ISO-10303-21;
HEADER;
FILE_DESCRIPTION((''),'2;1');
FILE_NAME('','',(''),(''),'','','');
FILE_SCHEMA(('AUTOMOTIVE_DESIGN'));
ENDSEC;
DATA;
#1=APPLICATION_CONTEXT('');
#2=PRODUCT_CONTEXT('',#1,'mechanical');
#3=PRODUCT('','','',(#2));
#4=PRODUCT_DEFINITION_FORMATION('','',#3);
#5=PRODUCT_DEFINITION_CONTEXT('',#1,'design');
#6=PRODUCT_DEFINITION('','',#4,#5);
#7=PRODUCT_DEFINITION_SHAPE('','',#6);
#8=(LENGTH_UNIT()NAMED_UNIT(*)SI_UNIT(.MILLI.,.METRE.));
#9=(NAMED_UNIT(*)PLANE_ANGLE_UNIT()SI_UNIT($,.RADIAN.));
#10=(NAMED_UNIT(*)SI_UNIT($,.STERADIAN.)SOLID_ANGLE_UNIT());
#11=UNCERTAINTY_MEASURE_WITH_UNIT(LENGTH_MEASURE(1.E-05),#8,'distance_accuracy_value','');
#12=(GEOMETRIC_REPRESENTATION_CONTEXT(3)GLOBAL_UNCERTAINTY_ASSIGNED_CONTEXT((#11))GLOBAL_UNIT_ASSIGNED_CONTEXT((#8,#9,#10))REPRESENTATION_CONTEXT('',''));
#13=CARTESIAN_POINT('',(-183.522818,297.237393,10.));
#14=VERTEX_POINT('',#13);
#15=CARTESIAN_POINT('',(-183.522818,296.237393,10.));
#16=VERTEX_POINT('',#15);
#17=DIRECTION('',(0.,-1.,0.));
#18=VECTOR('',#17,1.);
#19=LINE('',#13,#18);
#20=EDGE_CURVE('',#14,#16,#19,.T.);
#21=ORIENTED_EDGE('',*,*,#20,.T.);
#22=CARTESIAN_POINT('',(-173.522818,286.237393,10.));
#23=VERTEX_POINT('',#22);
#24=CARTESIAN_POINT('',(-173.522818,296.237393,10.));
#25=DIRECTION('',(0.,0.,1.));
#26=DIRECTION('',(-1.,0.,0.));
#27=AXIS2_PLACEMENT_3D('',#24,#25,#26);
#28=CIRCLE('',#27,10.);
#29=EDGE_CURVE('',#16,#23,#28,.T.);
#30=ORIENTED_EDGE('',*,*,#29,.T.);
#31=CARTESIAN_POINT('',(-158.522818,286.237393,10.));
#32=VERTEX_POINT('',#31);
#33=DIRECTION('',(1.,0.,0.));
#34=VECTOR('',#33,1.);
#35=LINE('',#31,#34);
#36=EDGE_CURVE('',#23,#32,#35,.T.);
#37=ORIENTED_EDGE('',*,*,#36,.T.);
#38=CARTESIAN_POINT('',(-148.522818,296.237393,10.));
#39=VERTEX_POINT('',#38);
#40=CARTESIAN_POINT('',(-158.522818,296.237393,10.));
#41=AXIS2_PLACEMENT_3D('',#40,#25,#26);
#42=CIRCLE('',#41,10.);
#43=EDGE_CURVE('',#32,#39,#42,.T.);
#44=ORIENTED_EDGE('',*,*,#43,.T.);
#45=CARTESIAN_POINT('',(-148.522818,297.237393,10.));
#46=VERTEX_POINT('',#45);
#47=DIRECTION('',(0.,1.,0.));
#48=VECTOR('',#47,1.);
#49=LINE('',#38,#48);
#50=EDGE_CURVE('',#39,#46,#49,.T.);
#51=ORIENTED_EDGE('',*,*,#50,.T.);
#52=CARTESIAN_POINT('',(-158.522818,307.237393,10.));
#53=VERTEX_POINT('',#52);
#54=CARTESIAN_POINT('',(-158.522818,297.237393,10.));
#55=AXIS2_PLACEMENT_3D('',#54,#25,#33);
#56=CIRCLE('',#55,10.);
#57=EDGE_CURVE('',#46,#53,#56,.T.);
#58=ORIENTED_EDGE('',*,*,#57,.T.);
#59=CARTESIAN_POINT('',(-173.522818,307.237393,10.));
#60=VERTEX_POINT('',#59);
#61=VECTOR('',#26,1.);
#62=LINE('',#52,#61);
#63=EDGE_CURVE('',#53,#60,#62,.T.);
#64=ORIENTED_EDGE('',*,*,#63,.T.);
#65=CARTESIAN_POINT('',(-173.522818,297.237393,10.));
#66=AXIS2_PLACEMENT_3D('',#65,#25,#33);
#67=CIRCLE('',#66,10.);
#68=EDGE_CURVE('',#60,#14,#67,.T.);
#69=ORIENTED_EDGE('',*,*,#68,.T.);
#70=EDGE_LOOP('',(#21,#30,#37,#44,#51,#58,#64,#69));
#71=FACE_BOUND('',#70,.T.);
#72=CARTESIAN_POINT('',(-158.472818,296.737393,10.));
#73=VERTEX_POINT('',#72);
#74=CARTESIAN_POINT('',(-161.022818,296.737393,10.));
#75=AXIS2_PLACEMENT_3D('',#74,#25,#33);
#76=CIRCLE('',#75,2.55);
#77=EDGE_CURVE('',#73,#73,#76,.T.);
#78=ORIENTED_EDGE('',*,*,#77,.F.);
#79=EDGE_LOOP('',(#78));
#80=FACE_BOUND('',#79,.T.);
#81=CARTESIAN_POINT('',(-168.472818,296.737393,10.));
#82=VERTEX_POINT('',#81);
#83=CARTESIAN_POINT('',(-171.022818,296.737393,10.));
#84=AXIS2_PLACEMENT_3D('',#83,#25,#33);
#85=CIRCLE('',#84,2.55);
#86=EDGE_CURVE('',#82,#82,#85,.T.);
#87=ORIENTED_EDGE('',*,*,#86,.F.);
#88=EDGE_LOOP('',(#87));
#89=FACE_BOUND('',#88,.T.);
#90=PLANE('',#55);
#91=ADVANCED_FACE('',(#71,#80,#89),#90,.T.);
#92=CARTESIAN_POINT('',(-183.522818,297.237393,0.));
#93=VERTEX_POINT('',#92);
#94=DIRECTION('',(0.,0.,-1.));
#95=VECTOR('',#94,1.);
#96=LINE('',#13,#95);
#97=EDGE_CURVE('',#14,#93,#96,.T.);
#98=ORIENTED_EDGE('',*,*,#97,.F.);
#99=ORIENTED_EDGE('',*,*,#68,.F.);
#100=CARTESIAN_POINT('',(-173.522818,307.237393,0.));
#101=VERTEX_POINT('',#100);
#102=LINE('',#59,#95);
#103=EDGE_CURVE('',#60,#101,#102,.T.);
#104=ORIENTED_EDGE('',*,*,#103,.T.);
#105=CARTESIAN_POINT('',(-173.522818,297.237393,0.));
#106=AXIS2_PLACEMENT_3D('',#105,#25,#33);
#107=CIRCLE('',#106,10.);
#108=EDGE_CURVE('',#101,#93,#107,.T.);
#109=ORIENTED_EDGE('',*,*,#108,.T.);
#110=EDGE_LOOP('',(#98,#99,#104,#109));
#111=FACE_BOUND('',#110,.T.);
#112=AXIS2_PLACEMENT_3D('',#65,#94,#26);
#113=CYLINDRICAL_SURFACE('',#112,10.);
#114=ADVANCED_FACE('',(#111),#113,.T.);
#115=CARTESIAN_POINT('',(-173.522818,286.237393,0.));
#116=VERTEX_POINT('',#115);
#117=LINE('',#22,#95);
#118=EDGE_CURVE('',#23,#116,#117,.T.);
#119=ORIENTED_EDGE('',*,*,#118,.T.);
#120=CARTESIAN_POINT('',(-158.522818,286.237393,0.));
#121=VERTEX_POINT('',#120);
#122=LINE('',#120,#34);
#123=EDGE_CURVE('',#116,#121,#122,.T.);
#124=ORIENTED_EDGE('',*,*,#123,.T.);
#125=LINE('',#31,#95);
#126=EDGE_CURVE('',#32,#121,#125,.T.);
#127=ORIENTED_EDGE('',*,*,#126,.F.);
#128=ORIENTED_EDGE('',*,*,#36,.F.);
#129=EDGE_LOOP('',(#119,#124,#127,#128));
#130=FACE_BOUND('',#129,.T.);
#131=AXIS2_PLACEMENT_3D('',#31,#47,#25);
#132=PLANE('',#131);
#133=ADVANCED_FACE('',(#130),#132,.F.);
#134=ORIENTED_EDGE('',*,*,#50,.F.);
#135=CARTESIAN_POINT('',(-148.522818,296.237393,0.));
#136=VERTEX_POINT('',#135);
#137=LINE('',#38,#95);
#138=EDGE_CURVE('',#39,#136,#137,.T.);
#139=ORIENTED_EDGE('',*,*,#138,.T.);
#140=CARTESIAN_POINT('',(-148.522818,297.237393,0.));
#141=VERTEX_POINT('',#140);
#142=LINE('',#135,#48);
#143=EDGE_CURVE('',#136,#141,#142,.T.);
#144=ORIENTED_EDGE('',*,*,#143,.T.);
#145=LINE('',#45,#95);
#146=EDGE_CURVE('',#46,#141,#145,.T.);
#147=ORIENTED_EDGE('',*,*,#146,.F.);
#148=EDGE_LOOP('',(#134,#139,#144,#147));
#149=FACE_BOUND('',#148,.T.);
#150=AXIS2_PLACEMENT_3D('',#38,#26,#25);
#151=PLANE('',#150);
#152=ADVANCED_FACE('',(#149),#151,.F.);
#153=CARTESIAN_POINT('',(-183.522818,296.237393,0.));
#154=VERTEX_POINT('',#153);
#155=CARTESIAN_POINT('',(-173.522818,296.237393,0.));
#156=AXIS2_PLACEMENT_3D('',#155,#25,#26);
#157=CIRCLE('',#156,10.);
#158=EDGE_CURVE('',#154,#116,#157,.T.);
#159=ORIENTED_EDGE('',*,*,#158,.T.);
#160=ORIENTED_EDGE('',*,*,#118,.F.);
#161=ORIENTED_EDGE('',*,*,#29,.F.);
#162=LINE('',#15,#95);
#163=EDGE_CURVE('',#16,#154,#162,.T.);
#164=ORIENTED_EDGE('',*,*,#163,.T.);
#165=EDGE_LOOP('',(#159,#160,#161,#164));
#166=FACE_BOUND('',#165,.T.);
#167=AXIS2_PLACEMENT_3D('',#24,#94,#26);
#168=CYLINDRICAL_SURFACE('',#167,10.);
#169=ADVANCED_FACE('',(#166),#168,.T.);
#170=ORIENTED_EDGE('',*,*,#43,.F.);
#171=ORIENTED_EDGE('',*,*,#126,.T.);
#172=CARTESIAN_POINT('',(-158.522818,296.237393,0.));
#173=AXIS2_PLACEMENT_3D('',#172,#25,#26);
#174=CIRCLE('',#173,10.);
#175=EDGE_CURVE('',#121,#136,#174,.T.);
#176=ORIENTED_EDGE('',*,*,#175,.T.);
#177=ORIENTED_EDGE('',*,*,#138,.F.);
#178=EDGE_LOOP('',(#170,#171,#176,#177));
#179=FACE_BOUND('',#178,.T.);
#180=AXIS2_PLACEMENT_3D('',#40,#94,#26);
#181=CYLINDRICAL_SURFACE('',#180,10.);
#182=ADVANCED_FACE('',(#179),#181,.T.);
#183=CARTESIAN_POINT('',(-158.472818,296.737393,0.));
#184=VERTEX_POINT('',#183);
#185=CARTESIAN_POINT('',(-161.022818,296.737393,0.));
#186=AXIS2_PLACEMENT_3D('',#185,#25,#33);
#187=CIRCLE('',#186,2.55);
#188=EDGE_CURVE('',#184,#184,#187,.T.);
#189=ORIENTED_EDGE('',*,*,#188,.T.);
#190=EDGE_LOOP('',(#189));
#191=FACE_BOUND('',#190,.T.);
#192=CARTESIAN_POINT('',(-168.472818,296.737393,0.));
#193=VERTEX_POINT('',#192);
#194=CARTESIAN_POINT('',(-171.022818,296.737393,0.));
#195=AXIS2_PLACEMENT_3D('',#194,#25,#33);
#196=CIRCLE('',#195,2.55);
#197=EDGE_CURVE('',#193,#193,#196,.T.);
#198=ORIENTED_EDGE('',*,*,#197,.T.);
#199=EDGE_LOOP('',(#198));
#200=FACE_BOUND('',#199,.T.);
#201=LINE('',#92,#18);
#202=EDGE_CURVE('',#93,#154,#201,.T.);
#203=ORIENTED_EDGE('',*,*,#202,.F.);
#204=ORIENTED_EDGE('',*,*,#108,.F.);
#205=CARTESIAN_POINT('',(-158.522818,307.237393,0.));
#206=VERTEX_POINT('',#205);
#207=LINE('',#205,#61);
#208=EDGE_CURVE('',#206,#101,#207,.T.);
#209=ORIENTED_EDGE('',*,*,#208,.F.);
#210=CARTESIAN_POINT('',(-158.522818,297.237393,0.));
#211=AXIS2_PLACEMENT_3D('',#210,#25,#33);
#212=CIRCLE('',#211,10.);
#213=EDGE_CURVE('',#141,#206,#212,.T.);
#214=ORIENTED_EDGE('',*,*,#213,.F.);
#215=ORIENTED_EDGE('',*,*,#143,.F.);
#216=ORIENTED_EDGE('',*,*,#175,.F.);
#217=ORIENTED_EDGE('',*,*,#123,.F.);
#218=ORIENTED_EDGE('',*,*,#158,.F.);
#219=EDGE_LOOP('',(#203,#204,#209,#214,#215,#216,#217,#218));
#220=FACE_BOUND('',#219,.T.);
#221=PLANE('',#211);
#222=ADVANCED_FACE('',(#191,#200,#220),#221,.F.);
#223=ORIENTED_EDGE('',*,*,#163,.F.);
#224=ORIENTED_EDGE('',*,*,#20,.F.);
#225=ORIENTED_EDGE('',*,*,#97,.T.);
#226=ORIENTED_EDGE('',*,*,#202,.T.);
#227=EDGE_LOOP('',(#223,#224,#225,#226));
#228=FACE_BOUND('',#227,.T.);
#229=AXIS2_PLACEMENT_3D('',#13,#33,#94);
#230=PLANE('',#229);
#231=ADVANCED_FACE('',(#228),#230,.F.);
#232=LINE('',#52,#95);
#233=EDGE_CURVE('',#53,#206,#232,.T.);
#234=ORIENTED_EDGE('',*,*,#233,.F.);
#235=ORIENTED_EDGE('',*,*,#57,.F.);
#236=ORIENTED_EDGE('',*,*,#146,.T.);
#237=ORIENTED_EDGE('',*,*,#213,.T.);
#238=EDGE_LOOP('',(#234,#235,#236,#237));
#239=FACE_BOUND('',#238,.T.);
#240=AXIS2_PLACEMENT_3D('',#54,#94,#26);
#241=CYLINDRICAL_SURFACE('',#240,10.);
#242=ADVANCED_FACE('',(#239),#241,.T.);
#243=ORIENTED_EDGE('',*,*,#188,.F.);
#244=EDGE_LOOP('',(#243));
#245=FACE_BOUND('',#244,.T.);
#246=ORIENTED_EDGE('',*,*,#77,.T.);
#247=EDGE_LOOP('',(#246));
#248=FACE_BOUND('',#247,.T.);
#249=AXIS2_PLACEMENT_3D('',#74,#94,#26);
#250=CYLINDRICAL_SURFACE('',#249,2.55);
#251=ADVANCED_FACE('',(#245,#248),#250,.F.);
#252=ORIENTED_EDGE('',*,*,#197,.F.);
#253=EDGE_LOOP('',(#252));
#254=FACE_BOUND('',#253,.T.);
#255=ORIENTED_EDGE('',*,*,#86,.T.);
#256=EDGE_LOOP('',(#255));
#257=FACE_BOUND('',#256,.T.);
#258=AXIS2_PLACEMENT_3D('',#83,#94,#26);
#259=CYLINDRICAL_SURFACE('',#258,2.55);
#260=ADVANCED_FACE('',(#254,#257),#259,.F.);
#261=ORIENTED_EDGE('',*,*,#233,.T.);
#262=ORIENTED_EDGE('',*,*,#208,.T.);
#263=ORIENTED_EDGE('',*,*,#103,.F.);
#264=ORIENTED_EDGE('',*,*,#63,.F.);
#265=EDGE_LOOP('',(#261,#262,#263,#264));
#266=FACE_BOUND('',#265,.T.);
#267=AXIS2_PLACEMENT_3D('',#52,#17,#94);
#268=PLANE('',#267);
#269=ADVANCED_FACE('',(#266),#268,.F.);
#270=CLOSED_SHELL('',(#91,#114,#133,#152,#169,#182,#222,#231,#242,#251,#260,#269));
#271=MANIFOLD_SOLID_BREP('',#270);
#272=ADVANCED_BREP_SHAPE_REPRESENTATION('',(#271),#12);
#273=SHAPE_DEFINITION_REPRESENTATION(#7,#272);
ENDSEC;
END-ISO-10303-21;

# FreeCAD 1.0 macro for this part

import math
import FreeCAD as App
import Part
import Sketcher

doc = App.newDocument("Part")
body = doc.addObject("PartDesign::Body", "Body")

sketch1 = body.newObject("Sketcher::SketchObject", "Sketch")
sketch1.AttachmentSupport = (doc.getObject("XY_Plane"), [""])
sketch1.MapMode = "FlatFace"
sketch1.addGeometry(Part.LineSegment(App.Vector(-173.522818, 286.237393, 0), App.Vector(-158.522818, 286.237393, 0)), False)
sketch1.addGeometry(Part.ArcOfCircle(Part.Circle(App.Vector(-158.522818, 296.237393, 0), App.Vector(0, 0, 1), 10), math.radians(-90), math.radians(0)), False)
sketch1.addGeometry(Part.LineSegment(App.Vector(-148.522818, 296.237393, 0), App.Vector(-148.522818, 297.237393, 0)), False)
sketch1.addGeometry(Part.ArcOfCircle(Part.Circle(App.Vector(-158.522818, 297.237393, 0), App.Vector(0, 0, 1), 10), math.radians(0), math.radians(90)), False)
sketch1.addGeometry(Part.LineSegment(App.Vector(-158.522818, 307.237393, 0), App.Vector(-173.522818, 307.237393, 0)), False)
sketch1.addGeometry(Part.ArcOfCircle(Part.Circle(App.Vector(-173.522818, 297.237393, 0), App.Vector(0, 0, 1), 10), math.radians(90), math.radians(180)), False)
sketch1.addGeometry(Part.LineSegment(App.Vector(-183.522818, 297.237393, 0), App.Vector(-183.522818, 296.237393, 0)), False)
sketch1.addGeometry(Part.ArcOfCircle(Part.Circle(App.Vector(-173.522818, 296.237393, 0), App.Vector(0, 0, 1), 10), math.radians(180), math.radians(270)), False)
sketch1.addGeometry(Part.Circle(App.Vector(-161.022818, 296.737393, 0), App.Vector(0, 0, 1), 2.55), False)
sketch1.addGeometry(Part.Circle(App.Vector(-171.022818, 296.737393, 0), App.Vector(0, 0, 1), 2.55), False)
sketch1.addConstraint(Sketcher.Constraint("Tangent", 0, 2, 1, 1))
sketch1.addConstraint(Sketcher.Constraint("Tangent", 1, 2, 2, 1))
sketch1.addConstraint(Sketcher.Constraint("Tangent", 2, 2, 3, 1))
sketch1.addConstraint(Sketcher.Constraint("Tangent", 3, 2, 4, 1))
sketch1.addConstraint(Sketcher.Constraint("Tangent", 4, 2, 5, 1))
sketch1.addConstraint(Sketcher.Constraint("Tangent", 5, 2, 6, 1))
sketch1.addConstraint(Sketcher.Constraint("Tangent", 6, 2, 7, 1))
sketch1.addConstraint(Sketcher.Constraint("Tangent", 7, 2, 0, 1))
sketch1.addConstraint(Sketcher.Constraint("Horizontal", 0))
sketch1.addConstraint(Sketcher.Constraint("Vertical", 2))
sketch1.addConstraint(Sketcher.Constraint("Horizontal", 4))
sketch1.addConstraint(Sketcher.Constraint("Vertical", 6))
sketch1.addConstraint(Sketcher.Constraint("Equal", 1, 3))
sketch1.addConstraint(Sketcher.Constraint("Equal", 3, 5))
sketch1.addConstraint(Sketcher.Constraint("Equal", 5, 7))
sketch1.addConstraint(Sketcher.Constraint("Equal", 8, 9))
sketch1.addConstraint(Sketcher.Constraint("Horizontal", 8, 3, 9, 3))
sketch1.addConstraint(Sketcher.Constraint("Radius", 1, 10.0))
sketch1.addConstraint(Sketcher.Constraint("Diameter", 8, 5.1))
sketch1.addConstraint(Sketcher.Constraint("DistanceX", 0, 1, 0, 2, 15.0))
sketch1.addConstraint(Sketcher.Constraint("DistanceY", 2, 1, 2, 2, 1.0))
sketch1.addConstraint(Sketcher.Constraint("DistanceX", 9, 3, 8, 3, 10.0))
sketch1.addConstraint(Sketcher.Constraint("DistanceX", 8, 3, 3, 3, 2.5))
sketch1.addConstraint(Sketcher.Constraint("DistanceY", 8, 3, 3, 3, 0.5))
sketch1.addConstraint(Sketcher.Constraint("DistanceX", 1, 3, -1, 1, 158.522818))
sketch1.addConstraint(Sketcher.Constraint("DistanceY", -1, 1, 1, 3, 296.237393))
pad1 = body.newObject("PartDesign::Pad", "Pad")
pad1.Profile = sketch1
pad1.Length = 10

doc.recompute()
